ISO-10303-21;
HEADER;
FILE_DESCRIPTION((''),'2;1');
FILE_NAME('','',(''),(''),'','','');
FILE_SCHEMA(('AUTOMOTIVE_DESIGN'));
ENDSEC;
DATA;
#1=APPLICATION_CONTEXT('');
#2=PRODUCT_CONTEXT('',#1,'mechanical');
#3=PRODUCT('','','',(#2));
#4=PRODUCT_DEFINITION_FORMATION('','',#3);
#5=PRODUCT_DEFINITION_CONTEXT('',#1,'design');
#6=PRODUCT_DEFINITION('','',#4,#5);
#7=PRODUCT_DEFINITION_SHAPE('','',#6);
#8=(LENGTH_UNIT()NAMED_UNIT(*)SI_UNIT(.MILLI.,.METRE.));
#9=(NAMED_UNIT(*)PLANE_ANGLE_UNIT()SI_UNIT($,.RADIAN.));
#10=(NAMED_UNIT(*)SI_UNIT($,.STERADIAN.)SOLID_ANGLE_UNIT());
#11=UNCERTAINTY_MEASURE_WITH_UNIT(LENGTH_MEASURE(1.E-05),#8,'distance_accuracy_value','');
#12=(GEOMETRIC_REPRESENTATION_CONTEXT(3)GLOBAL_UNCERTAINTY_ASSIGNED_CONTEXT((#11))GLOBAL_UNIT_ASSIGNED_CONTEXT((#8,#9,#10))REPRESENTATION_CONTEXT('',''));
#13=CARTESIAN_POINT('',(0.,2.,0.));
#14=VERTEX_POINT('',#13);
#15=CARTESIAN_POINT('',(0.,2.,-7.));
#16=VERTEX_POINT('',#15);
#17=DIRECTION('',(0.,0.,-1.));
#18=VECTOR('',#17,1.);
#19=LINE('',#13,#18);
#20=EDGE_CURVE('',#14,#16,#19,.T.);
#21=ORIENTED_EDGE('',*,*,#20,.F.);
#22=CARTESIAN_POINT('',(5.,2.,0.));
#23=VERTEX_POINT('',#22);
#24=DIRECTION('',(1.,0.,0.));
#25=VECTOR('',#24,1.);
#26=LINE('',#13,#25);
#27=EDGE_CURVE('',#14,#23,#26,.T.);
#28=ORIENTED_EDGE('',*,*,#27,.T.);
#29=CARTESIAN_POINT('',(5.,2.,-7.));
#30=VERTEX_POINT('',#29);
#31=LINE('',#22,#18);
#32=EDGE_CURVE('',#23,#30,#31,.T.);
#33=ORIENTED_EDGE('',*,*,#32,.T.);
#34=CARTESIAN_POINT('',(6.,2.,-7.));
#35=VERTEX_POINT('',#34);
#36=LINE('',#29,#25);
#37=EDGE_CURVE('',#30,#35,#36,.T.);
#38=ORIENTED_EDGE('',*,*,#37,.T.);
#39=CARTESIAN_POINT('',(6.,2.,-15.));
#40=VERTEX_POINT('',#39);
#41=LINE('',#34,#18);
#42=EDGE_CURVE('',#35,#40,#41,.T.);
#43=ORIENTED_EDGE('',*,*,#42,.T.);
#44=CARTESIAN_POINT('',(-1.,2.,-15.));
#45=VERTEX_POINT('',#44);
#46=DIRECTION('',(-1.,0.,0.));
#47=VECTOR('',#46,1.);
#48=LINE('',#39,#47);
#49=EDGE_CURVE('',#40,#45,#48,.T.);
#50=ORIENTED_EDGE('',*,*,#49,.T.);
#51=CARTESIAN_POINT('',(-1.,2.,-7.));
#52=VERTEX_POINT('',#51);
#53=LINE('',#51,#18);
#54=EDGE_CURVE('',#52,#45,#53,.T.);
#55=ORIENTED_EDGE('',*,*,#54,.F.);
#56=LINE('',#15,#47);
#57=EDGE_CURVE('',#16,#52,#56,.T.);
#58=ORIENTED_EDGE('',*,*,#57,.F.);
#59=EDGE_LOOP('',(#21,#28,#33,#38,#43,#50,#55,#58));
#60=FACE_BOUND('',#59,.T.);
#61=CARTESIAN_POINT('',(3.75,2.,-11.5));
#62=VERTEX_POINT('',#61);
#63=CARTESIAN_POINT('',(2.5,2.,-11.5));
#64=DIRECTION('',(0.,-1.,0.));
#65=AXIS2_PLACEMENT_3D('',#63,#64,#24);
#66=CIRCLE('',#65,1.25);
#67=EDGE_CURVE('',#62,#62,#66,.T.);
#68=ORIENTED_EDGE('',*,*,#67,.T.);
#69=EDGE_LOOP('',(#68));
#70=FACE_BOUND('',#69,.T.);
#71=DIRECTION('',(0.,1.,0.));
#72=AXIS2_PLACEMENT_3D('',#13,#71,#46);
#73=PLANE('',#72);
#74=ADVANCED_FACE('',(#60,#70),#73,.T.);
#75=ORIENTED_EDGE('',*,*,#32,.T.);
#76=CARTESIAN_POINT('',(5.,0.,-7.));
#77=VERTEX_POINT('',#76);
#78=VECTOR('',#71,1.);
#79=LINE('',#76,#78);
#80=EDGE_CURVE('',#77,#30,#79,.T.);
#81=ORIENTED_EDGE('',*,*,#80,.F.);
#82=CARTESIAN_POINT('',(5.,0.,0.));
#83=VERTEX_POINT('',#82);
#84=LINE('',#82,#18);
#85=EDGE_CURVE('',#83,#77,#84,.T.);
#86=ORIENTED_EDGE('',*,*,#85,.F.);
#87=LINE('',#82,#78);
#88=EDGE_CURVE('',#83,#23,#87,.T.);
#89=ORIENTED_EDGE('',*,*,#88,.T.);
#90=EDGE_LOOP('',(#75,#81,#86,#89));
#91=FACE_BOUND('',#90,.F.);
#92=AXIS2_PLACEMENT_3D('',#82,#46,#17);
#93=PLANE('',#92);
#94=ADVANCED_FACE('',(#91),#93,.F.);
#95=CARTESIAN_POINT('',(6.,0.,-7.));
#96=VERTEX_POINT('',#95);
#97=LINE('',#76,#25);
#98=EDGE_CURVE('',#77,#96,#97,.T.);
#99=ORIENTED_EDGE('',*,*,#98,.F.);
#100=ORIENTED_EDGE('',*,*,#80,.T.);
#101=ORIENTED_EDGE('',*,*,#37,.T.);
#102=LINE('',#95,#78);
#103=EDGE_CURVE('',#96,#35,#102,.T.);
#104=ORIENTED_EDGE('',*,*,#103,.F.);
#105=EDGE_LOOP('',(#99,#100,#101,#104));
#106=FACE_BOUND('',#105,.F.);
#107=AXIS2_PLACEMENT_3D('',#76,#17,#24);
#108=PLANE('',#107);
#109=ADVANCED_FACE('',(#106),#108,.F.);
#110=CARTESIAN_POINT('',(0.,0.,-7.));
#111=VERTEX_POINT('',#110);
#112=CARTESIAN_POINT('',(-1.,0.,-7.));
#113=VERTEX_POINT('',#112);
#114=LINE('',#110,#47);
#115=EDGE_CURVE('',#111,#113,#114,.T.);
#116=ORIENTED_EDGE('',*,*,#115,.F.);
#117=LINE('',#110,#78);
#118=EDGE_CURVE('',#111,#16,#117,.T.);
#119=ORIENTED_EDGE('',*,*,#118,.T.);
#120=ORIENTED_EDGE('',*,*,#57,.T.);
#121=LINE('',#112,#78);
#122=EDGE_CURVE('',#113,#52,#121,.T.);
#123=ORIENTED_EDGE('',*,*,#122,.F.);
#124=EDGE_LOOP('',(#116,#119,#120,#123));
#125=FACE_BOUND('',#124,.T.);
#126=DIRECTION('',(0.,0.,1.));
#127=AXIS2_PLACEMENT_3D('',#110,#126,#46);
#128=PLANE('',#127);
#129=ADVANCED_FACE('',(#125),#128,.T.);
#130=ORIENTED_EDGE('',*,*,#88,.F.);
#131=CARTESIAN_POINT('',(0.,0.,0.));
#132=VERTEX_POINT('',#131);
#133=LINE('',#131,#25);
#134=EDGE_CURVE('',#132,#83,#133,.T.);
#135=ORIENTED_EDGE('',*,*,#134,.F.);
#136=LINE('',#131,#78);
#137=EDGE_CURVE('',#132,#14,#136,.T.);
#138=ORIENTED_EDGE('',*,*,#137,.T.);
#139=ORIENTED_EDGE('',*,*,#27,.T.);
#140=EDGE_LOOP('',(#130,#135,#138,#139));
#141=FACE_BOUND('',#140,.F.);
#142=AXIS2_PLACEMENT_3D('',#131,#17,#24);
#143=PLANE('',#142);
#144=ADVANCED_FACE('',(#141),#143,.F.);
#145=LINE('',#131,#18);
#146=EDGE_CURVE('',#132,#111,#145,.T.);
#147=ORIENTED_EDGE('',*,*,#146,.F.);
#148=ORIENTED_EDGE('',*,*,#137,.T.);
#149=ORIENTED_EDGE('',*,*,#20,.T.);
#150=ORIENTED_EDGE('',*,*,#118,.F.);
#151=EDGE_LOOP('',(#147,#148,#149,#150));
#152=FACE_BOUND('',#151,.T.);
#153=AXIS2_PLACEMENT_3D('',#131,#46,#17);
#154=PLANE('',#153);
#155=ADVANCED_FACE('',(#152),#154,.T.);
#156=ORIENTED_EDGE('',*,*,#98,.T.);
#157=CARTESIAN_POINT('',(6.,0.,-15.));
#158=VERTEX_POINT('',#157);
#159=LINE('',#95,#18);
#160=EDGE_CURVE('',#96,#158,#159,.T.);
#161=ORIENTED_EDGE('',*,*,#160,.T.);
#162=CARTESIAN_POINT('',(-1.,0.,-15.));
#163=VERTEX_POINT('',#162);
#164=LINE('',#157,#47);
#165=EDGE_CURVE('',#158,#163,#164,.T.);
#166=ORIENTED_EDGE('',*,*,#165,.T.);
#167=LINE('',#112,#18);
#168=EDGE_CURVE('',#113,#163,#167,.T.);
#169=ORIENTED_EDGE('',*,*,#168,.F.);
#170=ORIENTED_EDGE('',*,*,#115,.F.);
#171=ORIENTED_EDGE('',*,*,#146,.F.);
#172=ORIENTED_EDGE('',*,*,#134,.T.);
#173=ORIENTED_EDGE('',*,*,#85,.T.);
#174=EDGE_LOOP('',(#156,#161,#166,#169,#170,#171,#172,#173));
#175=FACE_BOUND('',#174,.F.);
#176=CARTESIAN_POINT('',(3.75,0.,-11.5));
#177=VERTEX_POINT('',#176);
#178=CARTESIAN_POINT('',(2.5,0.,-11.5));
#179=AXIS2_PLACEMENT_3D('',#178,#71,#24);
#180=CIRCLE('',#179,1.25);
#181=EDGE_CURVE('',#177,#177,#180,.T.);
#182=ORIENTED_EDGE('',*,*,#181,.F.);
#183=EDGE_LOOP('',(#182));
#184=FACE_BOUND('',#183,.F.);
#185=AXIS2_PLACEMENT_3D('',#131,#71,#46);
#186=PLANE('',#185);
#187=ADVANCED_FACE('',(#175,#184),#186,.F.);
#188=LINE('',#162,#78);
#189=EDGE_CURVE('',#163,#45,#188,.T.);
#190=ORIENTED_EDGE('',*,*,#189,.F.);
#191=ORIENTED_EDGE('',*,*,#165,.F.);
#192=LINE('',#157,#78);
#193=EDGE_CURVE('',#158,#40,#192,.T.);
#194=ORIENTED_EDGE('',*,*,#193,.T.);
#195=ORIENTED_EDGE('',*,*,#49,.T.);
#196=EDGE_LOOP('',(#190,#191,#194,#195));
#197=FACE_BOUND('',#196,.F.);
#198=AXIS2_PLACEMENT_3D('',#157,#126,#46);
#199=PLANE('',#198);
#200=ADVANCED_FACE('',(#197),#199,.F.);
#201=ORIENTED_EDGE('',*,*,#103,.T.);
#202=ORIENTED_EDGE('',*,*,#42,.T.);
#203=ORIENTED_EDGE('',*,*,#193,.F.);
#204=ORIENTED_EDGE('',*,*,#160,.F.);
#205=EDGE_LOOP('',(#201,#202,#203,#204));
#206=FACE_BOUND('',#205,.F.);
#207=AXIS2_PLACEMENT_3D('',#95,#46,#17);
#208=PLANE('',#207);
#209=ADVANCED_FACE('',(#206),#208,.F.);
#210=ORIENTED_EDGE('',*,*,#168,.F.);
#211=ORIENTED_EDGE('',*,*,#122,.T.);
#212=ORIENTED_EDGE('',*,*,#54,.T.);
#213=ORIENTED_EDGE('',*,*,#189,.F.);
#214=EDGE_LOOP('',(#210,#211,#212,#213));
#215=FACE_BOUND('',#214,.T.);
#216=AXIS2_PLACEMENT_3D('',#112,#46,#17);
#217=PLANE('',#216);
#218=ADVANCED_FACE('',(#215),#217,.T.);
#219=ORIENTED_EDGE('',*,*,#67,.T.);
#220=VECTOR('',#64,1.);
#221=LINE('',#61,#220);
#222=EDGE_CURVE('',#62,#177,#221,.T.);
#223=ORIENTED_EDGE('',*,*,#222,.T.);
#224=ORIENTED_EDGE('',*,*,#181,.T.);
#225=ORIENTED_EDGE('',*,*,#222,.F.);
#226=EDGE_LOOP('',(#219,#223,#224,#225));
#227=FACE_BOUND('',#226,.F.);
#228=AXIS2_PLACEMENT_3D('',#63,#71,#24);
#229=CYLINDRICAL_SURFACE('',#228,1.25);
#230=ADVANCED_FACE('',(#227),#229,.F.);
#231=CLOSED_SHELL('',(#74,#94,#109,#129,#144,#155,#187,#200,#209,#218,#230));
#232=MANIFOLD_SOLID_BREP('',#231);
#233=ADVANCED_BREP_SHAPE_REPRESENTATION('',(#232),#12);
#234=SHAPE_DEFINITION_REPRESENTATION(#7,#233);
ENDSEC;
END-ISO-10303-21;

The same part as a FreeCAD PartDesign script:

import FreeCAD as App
import Part
import Sketcher
from FreeCAD import Vector

doc = App.newDocument("Part")
params = doc.addObject("Spreadsheet::Sheet", "Params")
for row, (alias, value) in enumerate([
    ("sketch1_width", "5 mm"),
    ("sketch1_width2", "1 mm"),
    ("sketch1_height", "8 mm"),
    ("pad1_length", "2 mm"),
    ("sketch2_diameter", "2.5 mm"),
    ("pocket1_length", "2 mm"),
], start=1):
    params.set(f"A{row}", alias)
    params.set(f"B{row}", "=" + value)
    params.setAlias(f"B{row}", alias)

body = doc.addObject("PartDesign::Body", "Body")

sketch1 = body.newObject("Sketcher::SketchObject", "Sketch")
sketch1.AttachmentSupport = (doc.getObject("XZ_Plane"), [""])
sketch1.MapMode = "FlatFace"
sketch1.addGeometry([
    Part.LineSegment(Vector(0, -7, 0), Vector(0, 0, 0)),
    Part.LineSegment(Vector(0, 0, 0), Vector(5, 0, 0)),
    Part.LineSegment(Vector(5, 0, 0), Vector(5, -7, 0)),
    Part.LineSegment(Vector(5, -7, 0), Vector(6, -7, 0)),
    Part.LineSegment(Vector(6, -7, 0), Vector(6, -15, 0)),
    Part.LineSegment(Vector(6, -15, 0), Vector(-1, -15, 0)),
    Part.LineSegment(Vector(-1, -15, 0), Vector(-1, -7, 0)),
    Part.LineSegment(Vector(-1, -7, 0), Vector(0, -7, 0)),
], False)
sketch1.addConstraint([
    Sketcher.Constraint("Coincident", 0, 2, 1, 1),
    Sketcher.Constraint("Coincident", 1, 2, 2, 1),
    Sketcher.Constraint("Coincident", 2, 2, 3, 1),
    Sketcher.Constraint("Coincident", 3, 2, 4, 1),
    Sketcher.Constraint("Coincident", 4, 2, 5, 1),
    Sketcher.Constraint("Coincident", 5, 2, 6, 1),
    Sketcher.Constraint("Coincident", 6, 2, 7, 1),
    Sketcher.Constraint("Coincident", 7, 2, 0, 1),
    Sketcher.Constraint("Vertical", 0),
    Sketcher.Constraint("Horizontal", 1),
    Sketcher.Constraint("Vertical", 2),
    Sketcher.Constraint("Horizontal", 3),
    Sketcher.Constraint("Vertical", 4),
    Sketcher.Constraint("Horizontal", 5),
    Sketcher.Constraint("Vertical", 6),
    Sketcher.Constraint("Horizontal", 7),
    Sketcher.Constraint("Coincident", 0, 2, -1, 1),
    Sketcher.Constraint("Horizontal", 3, 2, 6, 2),
    Sketcher.Constraint("Equal", 3, 7),
    Sketcher.Constraint("Equal", 5, 0),
    Sketcher.Constraint("DistanceX", 1, 1, 1, 2, 5.0),
    Sketcher.Constraint("DistanceX", 3, 1, 3, 2, 1.0),
    Sketcher.Constraint("DistanceY", 4, 2, 4, 1, 8.0),
])
sketch1.setExpression("Constraints[20]", "Params.sketch1_width")
sketch1.setExpression("Constraints[21]", "Params.sketch1_width2")
sketch1.setExpression("Constraints[22]", "Params.sketch1_height")
pad1 = body.newObject("PartDesign::Pad", "Pad")
pad1.Profile = sketch1
pad1.setExpression("Length", "Params.pad1_length")
pad1.Reversed = True

sketch2 = body.newObject("Sketcher::SketchObject", "Sketch001")
sketch2.AttachmentSupport = (doc.getObject("XZ_Plane"), [""])
sketch2.MapMode = "FlatFace"
sketch2.AttachmentOffset = App.Placement(Vector(0, 0, -2), App.Rotation())
sketch2.addGeometry(Part.Circle(Vector(2.5, -11.5, 0), Vector(0, 0, 1), 1.25), False)
sketch2.addConstraint([
    Sketcher.Constraint("Diameter", 0, 2.5),
    Sketcher.Constraint("DistanceX", -1, 1, 0, 3, 2.5),
    Sketcher.Constraint("DistanceY", 0, 3, -1, 1, 11.5),
])
sketch2.setExpression("Constraints[0]", "Params.sketch2_diameter")
pocket1 = body.newObject("PartDesign::Pocket", "Pocket")
pocket1.Profile = sketch2
pocket1.setExpression("Length", "Params.pocket1_length")
pocket1.Reversed = True

doc.recompute()
